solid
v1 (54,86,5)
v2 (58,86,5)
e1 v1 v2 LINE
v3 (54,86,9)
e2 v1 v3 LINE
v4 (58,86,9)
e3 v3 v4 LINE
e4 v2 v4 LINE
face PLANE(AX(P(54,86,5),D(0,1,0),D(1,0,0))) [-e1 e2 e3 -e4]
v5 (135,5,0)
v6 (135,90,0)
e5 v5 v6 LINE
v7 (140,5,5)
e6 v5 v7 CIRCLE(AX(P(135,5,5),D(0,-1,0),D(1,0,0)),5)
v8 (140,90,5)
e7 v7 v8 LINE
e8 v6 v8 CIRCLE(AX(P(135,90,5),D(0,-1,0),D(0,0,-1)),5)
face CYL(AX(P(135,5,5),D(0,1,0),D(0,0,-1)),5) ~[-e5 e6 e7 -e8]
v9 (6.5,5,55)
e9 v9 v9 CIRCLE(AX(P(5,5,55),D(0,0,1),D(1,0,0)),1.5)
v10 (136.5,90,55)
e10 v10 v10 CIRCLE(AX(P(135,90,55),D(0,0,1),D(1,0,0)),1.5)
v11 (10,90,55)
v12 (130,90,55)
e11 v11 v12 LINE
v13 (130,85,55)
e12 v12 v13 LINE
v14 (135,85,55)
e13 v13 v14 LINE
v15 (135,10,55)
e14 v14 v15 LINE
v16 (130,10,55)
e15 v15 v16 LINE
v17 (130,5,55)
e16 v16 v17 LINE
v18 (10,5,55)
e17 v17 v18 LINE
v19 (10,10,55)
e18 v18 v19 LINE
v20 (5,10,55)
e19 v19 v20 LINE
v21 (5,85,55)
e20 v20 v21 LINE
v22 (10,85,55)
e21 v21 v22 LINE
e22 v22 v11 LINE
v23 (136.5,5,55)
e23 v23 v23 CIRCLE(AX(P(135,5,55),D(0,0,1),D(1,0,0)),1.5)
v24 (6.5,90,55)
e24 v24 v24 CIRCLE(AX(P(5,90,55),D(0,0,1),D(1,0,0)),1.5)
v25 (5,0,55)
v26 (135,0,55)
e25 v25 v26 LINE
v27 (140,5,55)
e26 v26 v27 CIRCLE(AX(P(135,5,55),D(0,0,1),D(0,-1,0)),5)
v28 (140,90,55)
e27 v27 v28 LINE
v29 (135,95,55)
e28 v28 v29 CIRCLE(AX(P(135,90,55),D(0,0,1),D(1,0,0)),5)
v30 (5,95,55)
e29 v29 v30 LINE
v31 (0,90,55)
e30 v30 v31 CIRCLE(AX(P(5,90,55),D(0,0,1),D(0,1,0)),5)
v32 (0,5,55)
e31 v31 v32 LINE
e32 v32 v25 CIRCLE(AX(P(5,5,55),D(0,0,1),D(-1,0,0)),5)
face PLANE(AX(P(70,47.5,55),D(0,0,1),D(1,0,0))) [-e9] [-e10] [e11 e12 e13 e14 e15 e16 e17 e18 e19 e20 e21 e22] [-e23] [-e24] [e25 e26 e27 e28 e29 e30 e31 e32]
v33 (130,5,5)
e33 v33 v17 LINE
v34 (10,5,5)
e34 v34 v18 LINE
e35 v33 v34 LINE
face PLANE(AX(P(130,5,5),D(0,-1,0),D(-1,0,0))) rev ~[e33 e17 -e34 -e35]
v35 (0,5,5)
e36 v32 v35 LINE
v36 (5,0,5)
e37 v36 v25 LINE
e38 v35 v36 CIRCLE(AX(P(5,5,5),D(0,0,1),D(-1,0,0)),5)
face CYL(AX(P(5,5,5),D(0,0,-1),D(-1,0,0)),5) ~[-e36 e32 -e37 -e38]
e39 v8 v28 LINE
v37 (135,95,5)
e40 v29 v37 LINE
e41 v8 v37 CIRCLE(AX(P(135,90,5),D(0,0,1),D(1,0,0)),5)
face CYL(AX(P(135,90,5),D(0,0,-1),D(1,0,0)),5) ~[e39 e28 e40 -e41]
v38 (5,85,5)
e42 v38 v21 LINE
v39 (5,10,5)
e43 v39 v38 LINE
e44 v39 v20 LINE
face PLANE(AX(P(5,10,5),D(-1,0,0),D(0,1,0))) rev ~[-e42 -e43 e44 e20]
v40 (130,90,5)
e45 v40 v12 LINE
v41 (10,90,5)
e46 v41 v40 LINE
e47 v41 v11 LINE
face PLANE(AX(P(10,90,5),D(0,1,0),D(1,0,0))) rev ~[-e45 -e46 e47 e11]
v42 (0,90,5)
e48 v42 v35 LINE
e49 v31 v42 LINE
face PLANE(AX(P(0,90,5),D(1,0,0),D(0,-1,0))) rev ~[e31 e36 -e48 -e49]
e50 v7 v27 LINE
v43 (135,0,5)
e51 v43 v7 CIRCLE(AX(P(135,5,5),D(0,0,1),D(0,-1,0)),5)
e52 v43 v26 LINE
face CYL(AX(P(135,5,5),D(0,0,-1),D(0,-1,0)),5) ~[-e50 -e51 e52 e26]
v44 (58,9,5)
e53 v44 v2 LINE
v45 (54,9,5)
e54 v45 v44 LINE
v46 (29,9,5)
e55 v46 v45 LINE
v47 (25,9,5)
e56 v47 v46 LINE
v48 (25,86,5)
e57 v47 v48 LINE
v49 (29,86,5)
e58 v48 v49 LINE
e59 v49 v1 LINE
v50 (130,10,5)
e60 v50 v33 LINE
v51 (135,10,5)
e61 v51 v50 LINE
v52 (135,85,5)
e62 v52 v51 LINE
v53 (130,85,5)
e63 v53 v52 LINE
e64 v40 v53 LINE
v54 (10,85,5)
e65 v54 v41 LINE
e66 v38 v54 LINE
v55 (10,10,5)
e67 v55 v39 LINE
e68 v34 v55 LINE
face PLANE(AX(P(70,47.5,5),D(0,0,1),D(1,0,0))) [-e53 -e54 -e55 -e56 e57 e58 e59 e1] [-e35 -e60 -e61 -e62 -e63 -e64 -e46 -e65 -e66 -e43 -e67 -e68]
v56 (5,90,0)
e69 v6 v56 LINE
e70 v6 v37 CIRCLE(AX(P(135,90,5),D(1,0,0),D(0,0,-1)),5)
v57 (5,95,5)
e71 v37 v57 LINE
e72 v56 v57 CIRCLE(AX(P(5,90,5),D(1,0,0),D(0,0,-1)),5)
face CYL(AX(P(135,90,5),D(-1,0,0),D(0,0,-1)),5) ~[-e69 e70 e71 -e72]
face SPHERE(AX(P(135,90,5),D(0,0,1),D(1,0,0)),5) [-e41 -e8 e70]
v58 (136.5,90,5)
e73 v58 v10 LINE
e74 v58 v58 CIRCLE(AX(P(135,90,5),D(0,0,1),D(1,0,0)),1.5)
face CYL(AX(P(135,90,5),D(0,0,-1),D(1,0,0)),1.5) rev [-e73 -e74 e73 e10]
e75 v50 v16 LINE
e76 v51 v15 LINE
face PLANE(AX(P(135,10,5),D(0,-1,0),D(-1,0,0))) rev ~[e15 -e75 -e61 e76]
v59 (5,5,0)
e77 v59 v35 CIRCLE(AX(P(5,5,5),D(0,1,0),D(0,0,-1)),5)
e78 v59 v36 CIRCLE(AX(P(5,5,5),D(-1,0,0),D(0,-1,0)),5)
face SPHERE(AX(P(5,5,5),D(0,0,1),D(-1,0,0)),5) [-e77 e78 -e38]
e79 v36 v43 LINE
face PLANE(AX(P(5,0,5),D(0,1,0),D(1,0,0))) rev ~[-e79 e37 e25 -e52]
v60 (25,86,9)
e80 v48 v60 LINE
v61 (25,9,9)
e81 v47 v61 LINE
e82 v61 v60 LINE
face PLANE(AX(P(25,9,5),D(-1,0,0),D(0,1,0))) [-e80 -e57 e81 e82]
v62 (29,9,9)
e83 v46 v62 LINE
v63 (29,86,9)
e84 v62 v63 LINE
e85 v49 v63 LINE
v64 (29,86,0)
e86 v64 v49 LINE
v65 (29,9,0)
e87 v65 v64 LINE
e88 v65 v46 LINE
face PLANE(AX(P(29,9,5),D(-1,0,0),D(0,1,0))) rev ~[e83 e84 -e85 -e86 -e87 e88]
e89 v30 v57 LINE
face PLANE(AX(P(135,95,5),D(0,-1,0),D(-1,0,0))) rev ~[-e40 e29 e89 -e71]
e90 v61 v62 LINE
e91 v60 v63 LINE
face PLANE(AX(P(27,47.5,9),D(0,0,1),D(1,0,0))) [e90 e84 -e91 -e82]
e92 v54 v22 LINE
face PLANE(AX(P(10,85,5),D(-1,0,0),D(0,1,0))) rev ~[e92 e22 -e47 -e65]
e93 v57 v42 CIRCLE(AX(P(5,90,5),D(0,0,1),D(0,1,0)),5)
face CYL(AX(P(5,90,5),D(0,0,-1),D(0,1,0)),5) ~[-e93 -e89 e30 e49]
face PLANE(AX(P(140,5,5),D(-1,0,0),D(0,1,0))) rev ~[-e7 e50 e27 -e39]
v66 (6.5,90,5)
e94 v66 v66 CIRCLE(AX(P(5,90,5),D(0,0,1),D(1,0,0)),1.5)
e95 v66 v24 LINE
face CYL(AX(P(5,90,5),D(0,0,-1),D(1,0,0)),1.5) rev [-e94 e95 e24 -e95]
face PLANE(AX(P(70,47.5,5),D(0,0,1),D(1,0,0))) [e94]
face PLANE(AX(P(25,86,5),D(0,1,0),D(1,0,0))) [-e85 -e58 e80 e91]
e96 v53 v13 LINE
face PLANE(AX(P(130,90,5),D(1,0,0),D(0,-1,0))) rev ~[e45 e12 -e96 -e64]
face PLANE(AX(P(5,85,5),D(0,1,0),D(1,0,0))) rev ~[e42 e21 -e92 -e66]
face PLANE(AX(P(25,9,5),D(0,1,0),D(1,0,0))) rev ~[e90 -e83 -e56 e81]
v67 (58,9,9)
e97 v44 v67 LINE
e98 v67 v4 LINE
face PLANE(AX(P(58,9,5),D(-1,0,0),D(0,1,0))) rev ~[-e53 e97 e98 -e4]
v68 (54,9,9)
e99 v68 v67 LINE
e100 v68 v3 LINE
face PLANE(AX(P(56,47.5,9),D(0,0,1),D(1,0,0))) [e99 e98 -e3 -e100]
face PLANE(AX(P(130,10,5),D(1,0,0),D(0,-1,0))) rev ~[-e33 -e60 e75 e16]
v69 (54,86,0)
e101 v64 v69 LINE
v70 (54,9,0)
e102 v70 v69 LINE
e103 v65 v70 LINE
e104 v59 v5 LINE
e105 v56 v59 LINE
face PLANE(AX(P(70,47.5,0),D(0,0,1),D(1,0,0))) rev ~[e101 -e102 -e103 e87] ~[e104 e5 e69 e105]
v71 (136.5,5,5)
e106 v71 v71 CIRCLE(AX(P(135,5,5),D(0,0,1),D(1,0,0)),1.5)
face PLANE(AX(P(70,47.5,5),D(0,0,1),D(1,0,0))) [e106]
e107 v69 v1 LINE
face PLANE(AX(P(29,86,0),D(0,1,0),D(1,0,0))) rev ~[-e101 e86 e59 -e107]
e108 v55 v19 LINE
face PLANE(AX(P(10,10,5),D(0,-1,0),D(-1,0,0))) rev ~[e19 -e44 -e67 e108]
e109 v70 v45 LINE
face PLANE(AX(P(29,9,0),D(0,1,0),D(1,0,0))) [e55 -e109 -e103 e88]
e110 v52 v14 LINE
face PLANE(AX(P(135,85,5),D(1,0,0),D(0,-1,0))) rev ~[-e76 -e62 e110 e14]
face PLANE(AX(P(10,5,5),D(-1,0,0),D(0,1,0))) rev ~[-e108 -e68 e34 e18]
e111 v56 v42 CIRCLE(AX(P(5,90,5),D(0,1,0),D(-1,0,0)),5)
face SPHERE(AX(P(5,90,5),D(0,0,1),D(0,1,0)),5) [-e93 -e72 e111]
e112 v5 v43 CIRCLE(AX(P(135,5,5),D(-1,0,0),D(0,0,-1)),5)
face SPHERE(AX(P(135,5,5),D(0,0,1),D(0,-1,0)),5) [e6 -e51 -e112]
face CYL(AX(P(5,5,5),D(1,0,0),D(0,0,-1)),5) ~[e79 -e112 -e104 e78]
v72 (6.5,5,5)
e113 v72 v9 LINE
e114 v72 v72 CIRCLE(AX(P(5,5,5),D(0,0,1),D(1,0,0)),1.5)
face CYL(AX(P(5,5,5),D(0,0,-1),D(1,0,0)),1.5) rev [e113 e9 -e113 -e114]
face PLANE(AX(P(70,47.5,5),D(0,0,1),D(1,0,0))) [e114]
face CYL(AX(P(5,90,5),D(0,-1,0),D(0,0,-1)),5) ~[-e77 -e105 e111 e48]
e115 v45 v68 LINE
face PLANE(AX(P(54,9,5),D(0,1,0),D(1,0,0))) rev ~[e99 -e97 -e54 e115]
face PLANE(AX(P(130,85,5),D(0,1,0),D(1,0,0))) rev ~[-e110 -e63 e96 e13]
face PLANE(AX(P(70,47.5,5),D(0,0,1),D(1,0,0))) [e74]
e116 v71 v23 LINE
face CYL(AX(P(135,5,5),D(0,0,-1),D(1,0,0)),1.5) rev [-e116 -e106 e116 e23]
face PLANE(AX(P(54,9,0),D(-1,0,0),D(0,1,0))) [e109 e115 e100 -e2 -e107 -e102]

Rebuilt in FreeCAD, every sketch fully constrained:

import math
import FreeCAD as App
import Part
import Sketcher
Q = App.Units.Quantity


def edges_at(feature, points):
    """Names of the edges that pass closest to the given points."""
    edges = feature.Shape.Edges
    near = lambda p: min(range(len(edges)), key=lambda i: edges[i].distToShape(Part.Vertex(*p))[0])
    return sorted({f"Edge{near(p) + 1}" for p in points})

doc = App.newDocument("Part")
params = doc.addObject("Spreadsheet::Sheet", "Params")
for row, (alias, value) in enumerate([
    ("sketch1_radius", "5 mm"),
    ("sketch1_width", "130 mm"),
    ("sketch1_width2", "25 mm"),
    ("sketch1_height", "85 mm"),
    ("sketch1_height2", "77 mm"),
    ("pad1_length", "5 mm"),
    ("sketch2_diameter", "3 mm"),
    ("sketch2_radius", "5 mm"),
    ("sketch2_width", "130 mm"),
    ("sketch2_width2", "5 mm"),
    ("sketch2_height", "85 mm"),
    ("pad2_length", "50 mm"),
    ("fillet_radius", "5 mm"),
    ("sketch3_width", "4 mm"),
    ("sketch3_height", "77 mm"),
    ("pad3_length", "4 mm"),
], start=1):
    params.set(f"A{row}", alias)
    params.set(f"B{row}", "=" + value)
    params.setAlias(f"B{row}", alias)

body = doc.addObject("PartDesign::Body", "Body")

sketch1 = body.newObject("Sketcher::SketchObject", "Sketch")
sketch1.AttachmentSupport = (doc.getObject("XY_Plane"), [""])
sketch1.MapMode = "FlatFace"
sketch1.addGeometry(Part.ArcOfCircle(Part.Circle(App.Vector(5, 5, 0), App.Vector(0, 0, 1), 5), math.radians(180), math.radians(270)), False)
sketch1.addGeometry(Part.LineSegment(App.Vector(5, 0, 0), App.Vector(135, 0, 0)), False)
sketch1.addGeometry(Part.ArcOfCircle(Part.Circle(App.Vector(135, 5, 0), App.Vector(0, 0, 1), 5), math.radians(-90), math.radians(0)), False)
sketch1.addGeometry(Part.LineSegment(App.Vector(140, 5, 0), App.Vector(140, 90, 0)), False)
sketch1.addGeometry(Part.ArcOfCircle(Part.Circle(App.Vector(135, 90, 0), App.Vector(0, 0, 1), 5), math.radians(0), math.radians(90)), False)
sketch1.addGeometry(Part.LineSegment(App.Vector(135, 95, 0), App.Vector(5, 95, 0)), False)
sketch1.addGeometry(Part.ArcOfCircle(Part.Circle(App.Vector(5, 90, 0), App.Vector(0, 0, 1), 5), math.radians(90), math.radians(180)), False)
sketch1.addGeometry(Part.LineSegment(App.Vector(0, 90, 0), App.Vector(0, 5, 0)), False)
sketch1.addGeometry(Part.LineSegment(App.Vector(54, 9, 0), App.Vector(29, 9, 0)), False)
sketch1.addGeometry(Part.LineSegment(App.Vector(29, 9, 0), App.Vector(29, 86, 0)), False)
sketch1.addGeometry(Part.LineSegment(App.Vector(29, 86, 0), App.Vector(54, 86, 0)), False)
sketch1.addGeometry(Part.LineSegment(App.Vector(54, 86, 0), App.Vector(54, 9, 0)), False)
sketch1.addConstraint(Sketcher.Constraint("Tangent", 0, 2, 1, 1))
sketch1.addConstraint(Sketcher.Constraint("Tangent", 1, 2, 2, 1))
sketch1.addConstraint(Sketcher.Constraint("Tangent", 2, 2, 3, 1))
sketch1.addConstraint(Sketcher.Constraint("Tangent", 3, 2, 4, 1))
sketch1.addConstraint(Sketcher.Constraint("Tangent", 4, 2, 5, 1))
sketch1.addConstraint(Sketcher.Constraint("Tangent", 5, 2, 6, 1))
sketch1.addConstraint(Sketcher.Constraint("Tangent", 6, 2, 7, 1))
sketch1.addConstraint(Sketcher.Constraint("Tangent", 7, 2, 0, 1))
sketch1.addConstraint(Sketcher.Constraint("Coincident", 8, 2, 9, 1))
sketch1.addConstraint(Sketcher.Constraint("Coincident", 9, 2, 10, 1))
sketch1.addConstraint(Sketcher.Constraint("Coincident", 10, 2, 11, 1))
sketch1.addConstraint(Sketcher.Constraint("Coincident", 11, 2, 8, 1))
sketch1.addConstraint(Sketcher.Constraint("Horizontal", 1))
sketch1.addConstraint(Sketcher.Constraint("Vertical", 3))
sketch1.addConstraint(Sketcher.Constraint("Horizontal", 5))
sketch1.addConstraint(Sketcher.Constraint("Vertical", 7))
sketch1.addConstraint(Sketcher.Constraint("Horizontal", 8))
sketch1.addConstraint(Sketcher.Constraint("Vertical", 9))
sketch1.addConstraint(Sketcher.Constraint("Horizontal", 10))
sketch1.addConstraint(Sketcher.Constraint("Vertical", 11))
sketch1.addConstraint(Sketcher.Constraint("Equal", 0, 2))
sketch1.addConstraint(Sketcher.Constraint("Equal", 2, 4))
sketch1.addConstraint(Sketcher.Constraint("Equal", 4, 6))
sketch1.addConstraint(Sketcher.Constraint("PointOnObject", 0, 2, -1))
sketch1.addConstraint(Sketcher.Constraint("PointOnObject", 6, 2, -2))
sketch1.addConstraint(Sketcher.Constraint("Radius", 0, Q("5 mm")))
sketch1.addConstraint(Sketcher.Constraint("DistanceX", 1, 1, 1, 2, Q("130 mm")))
sketch1.addConstraint(Sketcher.Constraint("DistanceX", 8, 2, 8, 1, Q("25 mm")))
sketch1.addConstraint(Sketcher.Constraint("DistanceY", 3, 1, 3, 2, Q("85 mm")))
sketch1.addConstraint(Sketcher.Constraint("DistanceY", 9, 1, 9, 2, Q("77 mm")))
sketch1.addConstraint(Sketcher.Constraint("DistanceX", -1, 1, 8, 2, Q("29 mm")))
sketch1.addConstraint(Sketcher.Constraint("DistanceY", -1, 1, 8, 2, Q("9 mm")))
sketch1.setExpression("Constraints[25]", "Params.sketch1_radius")
sketch1.setExpression("Constraints[26]", "Params.sketch1_width")
sketch1.setExpression("Constraints[27]", "Params.sketch1_width2")
sketch1.setExpression("Constraints[28]", "Params.sketch1_height")
sketch1.setExpression("Constraints[29]", "Params.sketch1_height2")
pad1 = body.newObject("PartDesign::Pad", "Pad")
pad1.Profile = sketch1
pad1.setExpression("Length", "Params.pad1_length")

sketch2 = body.newObject("Sketcher::SketchObject", "Sketch001")
sketch2.AttachmentSupport = (doc.getObject("XY_Plane"), [""])
sketch2.MapMode = "FlatFace"
sketch2.AttachmentOffset = App.Placement(App.Vector(0, 0, 5), App.Rotation())
sketch2.addGeometry(Part.ArcOfCircle(Part.Circle(App.Vector(5, 5, 0), App.Vector(0, 0, 1), 5), math.radians(180), math.radians(270)), False)
sketch2.addGeometry(Part.LineSegment(App.Vector(5, 0, 0), App.Vector(135, 0, 0)), False)
sketch2.addGeometry(Part.ArcOfCircle(Part.Circle(App.Vector(135, 5, 0), App.Vector(0, 0, 1), 5), math.radians(-90), math.radians(0)), False)
sketch2.addGeometry(Part.LineSegment(App.Vector(140, 5, 0), App.Vector(140, 90, 0)), False)
sketch2.addGeometry(Part.ArcOfCircle(Part.Circle(App.Vector(135, 90, 0), App.Vector(0, 0, 1), 5), math.radians(0), math.radians(90)), False)
sketch2.addGeometry(Part.LineSegment(App.Vector(135, 95, 0), App.Vector(5, 95, 0)), False)
sketch2.addGeometry(Part.ArcOfCircle(Part.Circle(App.Vector(5, 90, 0), App.Vector(0, 0, 1), 5), math.radians(90), math.radians(180)), False)
sketch2.addGeometry(Part.LineSegment(App.Vector(0, 90, 0), App.Vector(0, 5, 0)), False)
sketch2.addGeometry(Part.Circle(App.Vector(5, 5, 0), App.Vector(0, 0, 1), 1.5), False)
sketch2.addGeometry(Part.Circle(App.Vector(135, 5, 0), App.Vector(0, 0, 1), 1.5), False)
sketch2.addGeometry(Part.Circle(App.Vector(5, 90, 0), App.Vector(0, 0, 1), 1.5), False)
sketch2.addGeometry(Part.LineSegment(App.Vector(10, 5, 0), App.Vector(10, 10, 0)), False)
sketch2.addGeometry(Part.LineSegment(App.Vector(10, 10, 0), App.Vector(5, 10, 0)), False)
sketch2.addGeometry(Part.LineSegment(App.Vector(5, 10, 0), App.Vector(5, 85, 0)), False)
sketch2.addGeometry(Part.LineSegment(App.Vector(5, 85, 0), App.Vector(10, 85, 0)), False)
sketch2.addGeometry(Part.LineSegment(App.Vector(10, 85, 0), App.Vector(10, 90, 0)), False)
sketch2.addGeometry(Part.LineSegment(App.Vector(10, 90, 0), App.Vector(130, 90, 0)), False)
sketch2.addGeometry(Part.LineSegment(App.Vector(130, 90, 0), App.Vector(130, 85, 0)), False)
sketch2.addGeometry(Part.LineSegment(App.Vector(130, 85, 0), App.Vector(135, 85, 0)), False)
sketch2.addGeometry(Part.LineSegment(App.Vector(135, 85, 0), App.Vector(135, 10, 0)), False)
sketch2.addGeometry(Part.LineSegment(App.Vector(135, 10, 0), App.Vector(130, 10, 0)), False)
sketch2.addGeometry(Part.LineSegment(App.Vector(130, 10, 0), App.Vector(130, 5, 0)), False)
sketch2.addGeometry(Part.LineSegment(App.Vector(130, 5, 0), App.Vector(10, 5, 0)), False)
sketch2.addGeometry(Part.Circle(App.Vector(135, 90, 0), App.Vector(0, 0, 1), 1.5), False)
sketch2.addConstraint(Sketcher.Constraint("Tangent", 0, 2, 1, 1))
sketch2.addConstraint(Sketcher.Constraint("Tangent", 1, 2, 2, 1))
sketch2.addConstraint(Sketcher.Constraint("Tangent", 2, 2, 3, 1))
sketch2.addConstraint(Sketcher.Constraint("Tangent", 3, 2, 4, 1))
sketch2.addConstraint(Sketcher.Constraint("Tangent", 4, 2, 5, 1))
sketch2.addConstraint(Sketcher.Constraint("Tangent", 5, 2, 6, 1))
sketch2.addConstraint(Sketcher.Constraint("Tangent", 6, 2, 7, 1))
sketch2.addConstraint(Sketcher.Constraint("Tangent", 7, 2, 0, 1))
sketch2.addConstraint(Sketcher.Constraint("Coincident", 11, 2, 12, 1))
sketch2.addConstraint(Sketcher.Constraint("Coincident", 12, 2, 13, 1))
sketch2.addConstraint(Sketcher.Constraint("Coincident", 13, 2, 14, 1))
sketch2.addConstraint(Sketcher.Constraint("Coincident", 14, 2, 15, 1))
sketch2.addConstraint(Sketcher.Constraint("Coincident", 15, 2, 16, 1))
sketch2.addConstraint(Sketcher.Constraint("Coincident", 16, 2, 17, 1))
sketch2.addConstraint(Sketcher.Constraint("Coincident", 17, 2, 18, 1))
sketch2.addConstraint(Sketcher.Constraint("Coincident", 18, 2, 19, 1))
sketch2.addConstraint(Sketcher.Constraint("Coincident", 19, 2, 20, 1))
sketch2.addConstraint(Sketcher.Constraint("Coincident", 20, 2, 21, 1))
sketch2.addConstraint(Sketcher.Constraint("Coincident", 21, 2, 22, 1))
sketch2.addConstraint(Sketcher.Constraint("Coincident", 22, 2, 11, 1))
sketch2.addConstraint(Sketcher.Constraint("Horizontal", 1))
sketch2.addConstraint(Sketcher.Constraint("Vertical", 3))
sketch2.addConstraint(Sketcher.Constraint("Horizontal", 5))
sketch2.addConstraint(Sketcher.Constraint("Vertical", 7))
sketch2.addConstraint(Sketcher.Constraint("Vertical", 11))
sketch2.addConstraint(Sketcher.Constraint("Horizontal", 12))
sketch2.addConstraint(Sketcher.Constraint("Vertical", 13))
sketch2.addConstraint(Sketcher.Constraint("Horizontal", 14))
sketch2.addConstraint(Sketcher.Constraint("Vertical", 15))
sketch2.addConstraint(Sketcher.Constraint("Horizontal", 16))
sketch2.addConstraint(Sketcher.Constraint("Vertical", 17))
sketch2.addConstraint(Sketcher.Constraint("Horizontal", 18))
sketch2.addConstraint(Sketcher.Constraint("Vertical", 19))
sketch2.addConstraint(Sketcher.Constraint("Horizontal", 20))
sketch2.addConstraint(Sketcher.Constraint("Vertical", 21))
sketch2.addConstraint(Sketcher.Constraint("Horizontal", 22))
sketch2.addConstraint(Sketcher.Constraint("Coincident", 8, 3, 0, 3))
sketch2.addConstraint(Sketcher.Constraint("Coincident", 9, 3, 2, 3))
sketch2.addConstraint(Sketcher.Constraint("Coincident", 10, 3, 6, 3))
sketch2.addConstraint(Sketcher.Constraint("Coincident", 23, 3, 4, 3))
sketch2.addConstraint(Sketcher.Constraint("Equal", 0, 2))
sketch2.addConstraint(Sketcher.Constraint("Equal", 2, 4))
sketch2.addConstraint(Sketcher.Constraint("Equal", 4, 6))
sketch2.addConstraint(Sketcher.Constraint("Equal", 8, 9))
sketch2.addConstraint(Sketcher.Constraint("Equal", 9, 10))
sketch2.addConstraint(Sketcher.Constraint("Equal", 10, 23))
sketch2.addConstraint(Sketcher.Constraint("PointOnObject", 0, 2, -1))
sketch2.addConstraint(Sketcher.Constraint("PointOnObject", 6, 2, -2))
sketch2.addConstraint(Sketcher.Constraint("Horizontal", 6, 2, 15, 2))
sketch2.addConstraint(Sketcher.Constraint("Horizontal", 14, 2, 17, 2))
sketch2.addConstraint(Sketcher.Constraint("Horizontal", 12, 2, 19, 2))
sketch2.addConstraint(Sketcher.Constraint("Horizontal", 7, 2, 21, 2))
sketch2.addConstraint(Sketcher.Constraint("Vertical", 5, 2, 12, 2))
sketch2.addConstraint(Sketcher.Constraint("Vertical", 11, 2, 14, 2))
sketch2.addConstraint(Sketcher.Constraint("Vertical", 4, 2, 18, 2))
sketch2.addConstraint(Sketcher.Constraint("Vertical", 17, 2, 20, 2))
sketch2.addConstraint(Sketcher.Constraint("Equal", 14, 18))
sketch2.addConstraint(Sketcher.Constraint("Equal", 20, 11))
sketch2.addConstraint(Sketcher.Constraint("Equal", 11, 15))
sketch2.addConstraint(Sketcher.Constraint("Diameter", 8, Q("3 mm")))
sketch2.addConstraint(Sketcher.Constraint("Radius", 0, Q("5 mm")))
sketch2.addConstraint(Sketcher.Constraint("DistanceX", 1, 1, 1, 2, Q("130 mm")))
sketch2.addConstraint(Sketcher.Constraint("DistanceX", 12, 2, 12, 1, Q("5 mm")))
sketch2.addConstraint(Sketcher.Constraint("DistanceY", 3, 1, 3, 2, Q("85 mm")))
sketch2.setExpression("Constraints[59]", "Params.sketch2_diameter")
sketch2.setExpression("Constraints[60]", "Params.sketch2_radius")
sketch2.setExpression("Constraints[61]", "Params.sketch2_width")
sketch2.setExpression("Constraints[62]", "Params.sketch2_width2")
sketch2.setExpression("Constraints[63]", "Params.sketch2_height")
pad2 = body.newObject("PartDesign::Pad", "Pad001")
pad2.Profile = sketch2
pad2.setExpression("Length", "Params.pad2_length")
doc.recompute()

fillet = body.newObject("PartDesign::Fillet", "Fillet")
fillet.Base = (pad2, edges_at(pad2, [(70, 95, 0)]))
fillet.setExpression("Radius", "Params.fillet_radius")

sketch3 = body.newObject("Sketcher::SketchObject", "Sketch002")
sketch3.AttachmentSupport = (doc.getObject("XY_Plane"), [""])
sketch3.MapMode = "FlatFace"
sketch3.AttachmentOffset = App.Placement(App.Vector(0, 0, 5), App.Rotation())
sketch3.addGeometry(Part.LineSegment(App.Vector(25, 86, 0), App.Vector(25, 9, 0)), False)
sketch3.addGeometry(Part.LineSegment(App.Vector(25, 9, 0), App.Vector(29, 9, 0)), False)
sketch3.addGeometry(Part.LineSegment(App.Vector(29, 9, 0), App.Vector(29, 86, 0)), False)
sketch3.addGeometry(Part.LineSegment(App.Vector(29, 86, 0), App.Vector(25, 86, 0)), False)
sketch3.addGeometry(Part.LineSegment(App.Vector(54, 86, 0), App.Vector(54, 9, 0)), False)
sketch3.addGeometry(Part.LineSegment(App.Vector(54, 9, 0), App.Vector(58, 9, 0)), False)
sketch3.addGeometry(Part.LineSegment(App.Vector(58, 9, 0), App.Vector(58, 86, 0)), False)
sketch3.addGeometry(Part.LineSegment(App.Vector(58, 86, 0), App.Vector(54, 86, 0)), False)
sketch3.addConstraint(Sketcher.Constraint("Coincident", 0, 2, 1, 1))
sketch3.addConstraint(Sketcher.Constraint("Coincident", 1, 2, 2, 1))
sketch3.addConstraint(Sketcher.Constraint("Coincident", 2, 2, 3, 1))
sketch3.addConstraint(Sketcher.Constraint("Coincident", 3, 2, 0, 1))
sketch3.addConstraint(Sketcher.Constraint("Coincident", 4, 2, 5, 1))
sketch3.addConstraint(Sketcher.Constraint("Coincident", 5, 2, 6, 1))
sketch3.addConstraint(Sketcher.Constraint("Coincident", 6, 2, 7, 1))
sketch3.addConstraint(Sketcher.Constraint("Coincident", 7, 2, 4, 1))
sketch3.addConstraint(Sketcher.Constraint("Vertical", 0))
sketch3.addConstraint(Sketcher.Constraint("Horizontal", 1))
sketch3.addConstraint(Sketcher.Constraint("Vertical", 2))
sketch3.addConstraint(Sketcher.Constraint("Horizontal", 3))
sketch3.addConstraint(Sketcher.Constraint("Vertical", 4))
sketch3.addConstraint(Sketcher.Constraint("Horizontal", 5))
sketch3.addConstraint(Sketcher.Constraint("Vertical", 6))
sketch3.addConstraint(Sketcher.Constraint("Horizontal", 7))
sketch3.addConstraint(Sketcher.Constraint("Horizontal", 1, 2, 4, 2))
sketch3.addConstraint(Sketcher.Constraint("Horizontal", 3, 2, 6, 2))
sketch3.addConstraint(Sketcher.Constraint("Equal", 3, 5))
sketch3.addConstraint(Sketcher.Constraint("DistanceX", 1, 1, 1, 2, Q("4 mm")))
sketch3.addConstraint(Sketcher.Constraint("DistanceY", 0, 2, 0, 1, Q("77 mm")))
sketch3.addConstraint(Sketcher.Constraint("DistanceX", -1, 1, 0, 2, Q("25 mm")))
sketch3.addConstraint(Sketcher.Constraint("DistanceY", -1, 1, 0, 2, Q("9 mm")))
sketch3.addConstraint(Sketcher.Constraint("DistanceX", -1, 1, 4, 2, Q("54 mm")))
sketch3.setExpression("Constraints[19]", "Params.sketch3_width")
sketch3.setExpression("Constraints[20]", "Params.sketch3_height")
pad3 = body.newObject("PartDesign::Pad", "Pad002")
pad3.Profile = sketch3
pad3.setExpression("Length", "Params.pad3_length")

doc.recompute()
